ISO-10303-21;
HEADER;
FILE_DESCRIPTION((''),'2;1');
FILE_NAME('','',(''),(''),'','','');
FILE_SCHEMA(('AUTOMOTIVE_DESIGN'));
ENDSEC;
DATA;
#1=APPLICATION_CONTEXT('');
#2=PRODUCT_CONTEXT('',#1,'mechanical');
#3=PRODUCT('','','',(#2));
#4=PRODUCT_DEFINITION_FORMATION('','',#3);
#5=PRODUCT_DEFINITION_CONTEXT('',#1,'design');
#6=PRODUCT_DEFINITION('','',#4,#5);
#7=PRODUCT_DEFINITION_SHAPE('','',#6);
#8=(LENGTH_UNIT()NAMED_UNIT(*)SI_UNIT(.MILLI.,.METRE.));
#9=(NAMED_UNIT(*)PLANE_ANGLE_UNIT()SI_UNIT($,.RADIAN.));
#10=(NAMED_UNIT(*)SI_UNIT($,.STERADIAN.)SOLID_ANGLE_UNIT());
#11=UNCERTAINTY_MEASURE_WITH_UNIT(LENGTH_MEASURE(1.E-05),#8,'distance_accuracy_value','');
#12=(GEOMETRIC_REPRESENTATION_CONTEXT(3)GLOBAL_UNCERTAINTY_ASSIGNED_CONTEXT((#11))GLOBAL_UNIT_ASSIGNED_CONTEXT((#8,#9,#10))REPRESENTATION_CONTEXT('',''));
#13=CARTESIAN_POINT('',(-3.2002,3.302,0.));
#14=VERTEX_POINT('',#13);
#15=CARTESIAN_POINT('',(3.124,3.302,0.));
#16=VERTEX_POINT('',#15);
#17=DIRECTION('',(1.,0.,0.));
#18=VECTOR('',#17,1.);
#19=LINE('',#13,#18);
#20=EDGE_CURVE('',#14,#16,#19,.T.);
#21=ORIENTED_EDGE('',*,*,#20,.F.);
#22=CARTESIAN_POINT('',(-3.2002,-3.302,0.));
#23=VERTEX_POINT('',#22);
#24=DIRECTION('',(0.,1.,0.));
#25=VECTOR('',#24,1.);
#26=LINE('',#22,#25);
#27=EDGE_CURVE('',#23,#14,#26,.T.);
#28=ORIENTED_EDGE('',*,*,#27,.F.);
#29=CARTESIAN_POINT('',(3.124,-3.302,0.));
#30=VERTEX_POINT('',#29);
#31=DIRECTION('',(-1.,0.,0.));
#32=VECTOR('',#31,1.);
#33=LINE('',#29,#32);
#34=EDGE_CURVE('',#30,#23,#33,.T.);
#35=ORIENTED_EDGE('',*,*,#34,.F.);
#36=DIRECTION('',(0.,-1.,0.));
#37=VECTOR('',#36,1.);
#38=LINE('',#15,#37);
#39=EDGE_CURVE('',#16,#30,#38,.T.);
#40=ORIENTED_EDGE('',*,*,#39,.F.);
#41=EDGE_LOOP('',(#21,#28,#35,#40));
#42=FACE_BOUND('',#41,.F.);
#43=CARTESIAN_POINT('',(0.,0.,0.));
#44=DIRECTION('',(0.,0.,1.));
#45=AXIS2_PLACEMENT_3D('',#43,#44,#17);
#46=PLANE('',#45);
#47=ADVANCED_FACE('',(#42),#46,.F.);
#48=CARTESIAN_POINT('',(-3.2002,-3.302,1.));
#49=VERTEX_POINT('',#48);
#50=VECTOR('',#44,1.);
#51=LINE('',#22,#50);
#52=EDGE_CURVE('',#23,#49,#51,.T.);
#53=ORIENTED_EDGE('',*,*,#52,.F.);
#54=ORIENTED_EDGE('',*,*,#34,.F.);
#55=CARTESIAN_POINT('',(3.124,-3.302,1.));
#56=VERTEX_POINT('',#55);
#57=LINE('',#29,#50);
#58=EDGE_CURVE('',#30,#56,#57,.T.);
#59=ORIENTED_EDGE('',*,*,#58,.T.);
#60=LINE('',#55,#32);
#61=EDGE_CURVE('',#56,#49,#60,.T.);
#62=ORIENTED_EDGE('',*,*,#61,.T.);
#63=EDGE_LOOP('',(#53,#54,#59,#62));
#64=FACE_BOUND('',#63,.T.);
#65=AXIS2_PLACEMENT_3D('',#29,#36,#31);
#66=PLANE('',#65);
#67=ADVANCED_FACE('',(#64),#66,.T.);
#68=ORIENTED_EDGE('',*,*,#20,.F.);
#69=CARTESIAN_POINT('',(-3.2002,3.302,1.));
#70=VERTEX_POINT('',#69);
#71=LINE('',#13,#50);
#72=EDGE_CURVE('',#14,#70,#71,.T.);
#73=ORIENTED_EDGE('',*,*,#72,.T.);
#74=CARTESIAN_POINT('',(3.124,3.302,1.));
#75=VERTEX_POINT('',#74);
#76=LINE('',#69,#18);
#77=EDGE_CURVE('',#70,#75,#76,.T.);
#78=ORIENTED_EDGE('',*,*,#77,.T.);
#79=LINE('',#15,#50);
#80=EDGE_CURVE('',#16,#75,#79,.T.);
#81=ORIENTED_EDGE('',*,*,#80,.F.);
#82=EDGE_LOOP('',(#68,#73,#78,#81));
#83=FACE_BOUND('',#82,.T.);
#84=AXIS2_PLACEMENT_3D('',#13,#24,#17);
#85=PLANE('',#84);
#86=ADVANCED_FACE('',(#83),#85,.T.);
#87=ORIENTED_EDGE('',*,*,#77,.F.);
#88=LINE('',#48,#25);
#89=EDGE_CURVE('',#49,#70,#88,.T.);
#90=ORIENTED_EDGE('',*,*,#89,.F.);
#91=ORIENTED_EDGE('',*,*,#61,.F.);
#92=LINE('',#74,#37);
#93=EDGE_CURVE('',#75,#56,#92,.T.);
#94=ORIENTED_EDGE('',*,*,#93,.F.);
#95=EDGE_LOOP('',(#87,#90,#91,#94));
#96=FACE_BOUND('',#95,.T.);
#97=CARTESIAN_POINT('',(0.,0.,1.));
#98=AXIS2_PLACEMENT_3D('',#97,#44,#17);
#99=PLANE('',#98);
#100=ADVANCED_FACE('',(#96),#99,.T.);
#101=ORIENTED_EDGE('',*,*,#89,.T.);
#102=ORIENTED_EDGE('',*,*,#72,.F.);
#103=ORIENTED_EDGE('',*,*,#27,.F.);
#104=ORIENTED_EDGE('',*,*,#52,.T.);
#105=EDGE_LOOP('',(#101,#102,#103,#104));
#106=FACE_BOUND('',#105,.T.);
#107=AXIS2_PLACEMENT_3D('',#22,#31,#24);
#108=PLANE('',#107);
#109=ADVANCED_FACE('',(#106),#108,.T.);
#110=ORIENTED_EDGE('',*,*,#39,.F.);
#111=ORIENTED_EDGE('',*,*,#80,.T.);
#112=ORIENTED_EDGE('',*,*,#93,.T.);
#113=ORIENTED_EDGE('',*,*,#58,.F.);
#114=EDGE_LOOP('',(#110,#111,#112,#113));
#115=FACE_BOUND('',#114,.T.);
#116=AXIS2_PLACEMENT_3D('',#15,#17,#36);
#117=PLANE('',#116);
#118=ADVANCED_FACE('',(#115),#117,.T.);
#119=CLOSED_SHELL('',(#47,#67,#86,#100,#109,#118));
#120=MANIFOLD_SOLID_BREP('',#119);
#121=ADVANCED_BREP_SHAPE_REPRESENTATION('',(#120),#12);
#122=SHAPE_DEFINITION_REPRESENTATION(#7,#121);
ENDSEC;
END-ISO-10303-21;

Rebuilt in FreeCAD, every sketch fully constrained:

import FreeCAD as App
import Part
import Sketcher
from FreeCAD import Vector

doc = App.newDocument("Part")
body = doc.addObject("PartDesign::Body", "Body")

# Sketch on XY plane
sketch1 = doc.addObject("Sketcher::SketchObject", "Sketch")
body.addObject(sketch1)
sketch1.AttachmentSupport = (doc.XY_Plane, [""])
sketch1.MapMode = "FlatFace"
sketch1.addGeometry([
    Part.LineSegment(Vector(3, 3, 0), Vector(-3, 3, 0)),
    Part.LineSegment(Vector(-3, 3, 0), Vector(-3, -3, 0)),
    Part.LineSegment(Vector(-3, -3, 0), Vector(3, -3, 0)),
    Part.LineSegment(Vector(3, -3, 0), Vector(3, 3, 0)),
], False)
sketch1.addConstraint([
    Sketcher.Constraint("Coincident", 0, 2, 1, 1),
    Sketcher.Constraint("Coincident", 1, 2, 2, 1),
    Sketcher.Constraint("Coincident", 2, 2, 3, 1),
    Sketcher.Constraint("Coincident", 3, 2, 0, 1),
    Sketcher.Constraint("Horizontal", 0),
    Sketcher.Constraint("Vertical", 1),
    Sketcher.Constraint("Horizontal", 2),
    Sketcher.Constraint("Vertical", 3),
    Sketcher.Constraint("DistanceY", 1, 2, 1, 1, 6.604),
    Sketcher.Constraint("DistanceX", 0, 2, 0, 1, 6.3242),
    Sketcher.Constraint("DistanceY", -1, 1, 0, 2, 3.302),
    Sketcher.Constraint("DistanceX", -1, 1, 2, 2, 3.124),
])
pad1 = doc.addObject("PartDesign::Pad", "Pad")
body.addObject(pad1)
pad1.Profile = sketch1
pad1.Length = 1

doc.recompute()
